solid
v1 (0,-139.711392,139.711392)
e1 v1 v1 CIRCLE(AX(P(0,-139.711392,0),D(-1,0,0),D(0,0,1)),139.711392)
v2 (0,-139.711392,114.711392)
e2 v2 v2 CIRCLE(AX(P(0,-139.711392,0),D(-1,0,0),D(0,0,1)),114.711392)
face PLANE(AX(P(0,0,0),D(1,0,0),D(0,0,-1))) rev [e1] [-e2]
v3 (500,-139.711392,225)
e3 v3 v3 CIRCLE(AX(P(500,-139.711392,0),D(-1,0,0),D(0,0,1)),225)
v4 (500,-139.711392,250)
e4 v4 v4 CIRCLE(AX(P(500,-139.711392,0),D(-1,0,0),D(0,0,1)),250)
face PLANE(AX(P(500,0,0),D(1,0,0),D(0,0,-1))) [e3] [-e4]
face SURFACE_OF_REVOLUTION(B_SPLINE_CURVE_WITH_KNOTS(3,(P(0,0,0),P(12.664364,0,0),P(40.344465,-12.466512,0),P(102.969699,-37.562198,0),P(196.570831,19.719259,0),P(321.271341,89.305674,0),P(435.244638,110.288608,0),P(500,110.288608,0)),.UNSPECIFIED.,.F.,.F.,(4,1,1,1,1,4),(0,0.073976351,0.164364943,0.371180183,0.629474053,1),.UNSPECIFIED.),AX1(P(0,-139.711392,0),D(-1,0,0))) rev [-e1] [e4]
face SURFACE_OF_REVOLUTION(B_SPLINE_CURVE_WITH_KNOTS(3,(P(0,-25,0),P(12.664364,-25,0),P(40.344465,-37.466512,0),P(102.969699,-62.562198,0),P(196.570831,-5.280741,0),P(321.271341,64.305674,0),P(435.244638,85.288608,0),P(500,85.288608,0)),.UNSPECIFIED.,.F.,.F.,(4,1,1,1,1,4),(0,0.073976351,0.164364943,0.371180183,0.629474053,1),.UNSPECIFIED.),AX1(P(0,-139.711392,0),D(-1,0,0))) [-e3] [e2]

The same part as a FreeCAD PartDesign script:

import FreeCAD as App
import Part
import Sketcher

V = App.Vector

doc = App.newDocument("Part")
body = doc.addObject("PartDesign::Body", "Body")

# Sketch on XY plane
sketch1 = doc.addObject("Sketcher::SketchObject", "Sketch")
body.addObject(sketch1)
sketch1.AttachmentSupport = (doc.XY_Plane, [""])
sketch1.MapMode = "FlatFace"
sketch1.addGeometry(Part.BSplineCurve([V(0, 0, 0), V(12.664364, 0, 0), V(40.344465, -12.466512, 0), V(102.969699, -37.562198, 0), V(196.570831, 19.719259, 0), V(321.271341, 89.305674, 0), V(435.244638, 110.288608, 0), V(500, 110.288608, 0)], [4, 1, 1, 1, 1, 4], [0, 0.073976351, 0.164364943, 0.371180183, 0.629474053, 1], False, 3, [1, 1, 1, 1, 1, 1, 1, 1], False), False)
sketch1.addGeometry(Part.LineSegment(V(0, 0, 0), V(0, -25, 0)), False)
sketch1.addGeometry(Part.BSplineCurve([V(0, -25, 0), V(12.664364, -25, 0), V(40.344465, -37.466512, 0), V(102.969699, -62.562198, 0), V(196.570831, -5.280741, 0), V(321.271341, 64.305674, 0), V(435.244638, 85.288608, 0), V(500, 85.288608, 0)], [4, 1, 1, 1, 1, 4], [0, 0.073976351, 0.164364943, 0.371180183, 0.629474053, 1], False, 3, [1, 1, 1, 1, 1, 1, 1, 1], False), False)
sketch1.addGeometry(Part.LineSegment(V(500, 85.288608, 0), V(500, 110.288608, 0)), False)
sketch1.addGeometry(Part.LineSegment(V(0, -139.711392, 0), V(500, -139.711392, 0)), True)  # axis
sketch1.addConstraint(Sketcher.Constraint("Block", 0))
sketch1.addConstraint(Sketcher.Constraint("Block", 2))
sketch1.addConstraint(Sketcher.Constraint("Coincident", 0, 1, 1, 1))
sketch1.addConstraint(Sketcher.Constraint("Coincident", 1, 2, 2, 1))
sketch1.addConstraint(Sketcher.Constraint("Coincident", 2, 2, 3, 1))
sketch1.addConstraint(Sketcher.Constraint("Coincident", 3, 2, 0, 2))
sketch1.addConstraint(Sketcher.Constraint("Horizontal", 4))
sketch1.addConstraint(Sketcher.Constraint("PointOnObject", 4, 1, -2))
sketch1.addConstraint(Sketcher.Constraint("Vertical", 3, 2, 4, 2))
sketch1.addConstraint(Sketcher.Constraint("DistanceY", 4, 1, 3, 2, 250.0))
revolution = doc.addObject("PartDesign::Revolution", "Revolution")
body.addObject(revolution)
revolution.Profile = sketch1
revolution.ReferenceAxis = (sketch1, ["Axis0"])
revolution.Angle = 360

doc.recompute()
